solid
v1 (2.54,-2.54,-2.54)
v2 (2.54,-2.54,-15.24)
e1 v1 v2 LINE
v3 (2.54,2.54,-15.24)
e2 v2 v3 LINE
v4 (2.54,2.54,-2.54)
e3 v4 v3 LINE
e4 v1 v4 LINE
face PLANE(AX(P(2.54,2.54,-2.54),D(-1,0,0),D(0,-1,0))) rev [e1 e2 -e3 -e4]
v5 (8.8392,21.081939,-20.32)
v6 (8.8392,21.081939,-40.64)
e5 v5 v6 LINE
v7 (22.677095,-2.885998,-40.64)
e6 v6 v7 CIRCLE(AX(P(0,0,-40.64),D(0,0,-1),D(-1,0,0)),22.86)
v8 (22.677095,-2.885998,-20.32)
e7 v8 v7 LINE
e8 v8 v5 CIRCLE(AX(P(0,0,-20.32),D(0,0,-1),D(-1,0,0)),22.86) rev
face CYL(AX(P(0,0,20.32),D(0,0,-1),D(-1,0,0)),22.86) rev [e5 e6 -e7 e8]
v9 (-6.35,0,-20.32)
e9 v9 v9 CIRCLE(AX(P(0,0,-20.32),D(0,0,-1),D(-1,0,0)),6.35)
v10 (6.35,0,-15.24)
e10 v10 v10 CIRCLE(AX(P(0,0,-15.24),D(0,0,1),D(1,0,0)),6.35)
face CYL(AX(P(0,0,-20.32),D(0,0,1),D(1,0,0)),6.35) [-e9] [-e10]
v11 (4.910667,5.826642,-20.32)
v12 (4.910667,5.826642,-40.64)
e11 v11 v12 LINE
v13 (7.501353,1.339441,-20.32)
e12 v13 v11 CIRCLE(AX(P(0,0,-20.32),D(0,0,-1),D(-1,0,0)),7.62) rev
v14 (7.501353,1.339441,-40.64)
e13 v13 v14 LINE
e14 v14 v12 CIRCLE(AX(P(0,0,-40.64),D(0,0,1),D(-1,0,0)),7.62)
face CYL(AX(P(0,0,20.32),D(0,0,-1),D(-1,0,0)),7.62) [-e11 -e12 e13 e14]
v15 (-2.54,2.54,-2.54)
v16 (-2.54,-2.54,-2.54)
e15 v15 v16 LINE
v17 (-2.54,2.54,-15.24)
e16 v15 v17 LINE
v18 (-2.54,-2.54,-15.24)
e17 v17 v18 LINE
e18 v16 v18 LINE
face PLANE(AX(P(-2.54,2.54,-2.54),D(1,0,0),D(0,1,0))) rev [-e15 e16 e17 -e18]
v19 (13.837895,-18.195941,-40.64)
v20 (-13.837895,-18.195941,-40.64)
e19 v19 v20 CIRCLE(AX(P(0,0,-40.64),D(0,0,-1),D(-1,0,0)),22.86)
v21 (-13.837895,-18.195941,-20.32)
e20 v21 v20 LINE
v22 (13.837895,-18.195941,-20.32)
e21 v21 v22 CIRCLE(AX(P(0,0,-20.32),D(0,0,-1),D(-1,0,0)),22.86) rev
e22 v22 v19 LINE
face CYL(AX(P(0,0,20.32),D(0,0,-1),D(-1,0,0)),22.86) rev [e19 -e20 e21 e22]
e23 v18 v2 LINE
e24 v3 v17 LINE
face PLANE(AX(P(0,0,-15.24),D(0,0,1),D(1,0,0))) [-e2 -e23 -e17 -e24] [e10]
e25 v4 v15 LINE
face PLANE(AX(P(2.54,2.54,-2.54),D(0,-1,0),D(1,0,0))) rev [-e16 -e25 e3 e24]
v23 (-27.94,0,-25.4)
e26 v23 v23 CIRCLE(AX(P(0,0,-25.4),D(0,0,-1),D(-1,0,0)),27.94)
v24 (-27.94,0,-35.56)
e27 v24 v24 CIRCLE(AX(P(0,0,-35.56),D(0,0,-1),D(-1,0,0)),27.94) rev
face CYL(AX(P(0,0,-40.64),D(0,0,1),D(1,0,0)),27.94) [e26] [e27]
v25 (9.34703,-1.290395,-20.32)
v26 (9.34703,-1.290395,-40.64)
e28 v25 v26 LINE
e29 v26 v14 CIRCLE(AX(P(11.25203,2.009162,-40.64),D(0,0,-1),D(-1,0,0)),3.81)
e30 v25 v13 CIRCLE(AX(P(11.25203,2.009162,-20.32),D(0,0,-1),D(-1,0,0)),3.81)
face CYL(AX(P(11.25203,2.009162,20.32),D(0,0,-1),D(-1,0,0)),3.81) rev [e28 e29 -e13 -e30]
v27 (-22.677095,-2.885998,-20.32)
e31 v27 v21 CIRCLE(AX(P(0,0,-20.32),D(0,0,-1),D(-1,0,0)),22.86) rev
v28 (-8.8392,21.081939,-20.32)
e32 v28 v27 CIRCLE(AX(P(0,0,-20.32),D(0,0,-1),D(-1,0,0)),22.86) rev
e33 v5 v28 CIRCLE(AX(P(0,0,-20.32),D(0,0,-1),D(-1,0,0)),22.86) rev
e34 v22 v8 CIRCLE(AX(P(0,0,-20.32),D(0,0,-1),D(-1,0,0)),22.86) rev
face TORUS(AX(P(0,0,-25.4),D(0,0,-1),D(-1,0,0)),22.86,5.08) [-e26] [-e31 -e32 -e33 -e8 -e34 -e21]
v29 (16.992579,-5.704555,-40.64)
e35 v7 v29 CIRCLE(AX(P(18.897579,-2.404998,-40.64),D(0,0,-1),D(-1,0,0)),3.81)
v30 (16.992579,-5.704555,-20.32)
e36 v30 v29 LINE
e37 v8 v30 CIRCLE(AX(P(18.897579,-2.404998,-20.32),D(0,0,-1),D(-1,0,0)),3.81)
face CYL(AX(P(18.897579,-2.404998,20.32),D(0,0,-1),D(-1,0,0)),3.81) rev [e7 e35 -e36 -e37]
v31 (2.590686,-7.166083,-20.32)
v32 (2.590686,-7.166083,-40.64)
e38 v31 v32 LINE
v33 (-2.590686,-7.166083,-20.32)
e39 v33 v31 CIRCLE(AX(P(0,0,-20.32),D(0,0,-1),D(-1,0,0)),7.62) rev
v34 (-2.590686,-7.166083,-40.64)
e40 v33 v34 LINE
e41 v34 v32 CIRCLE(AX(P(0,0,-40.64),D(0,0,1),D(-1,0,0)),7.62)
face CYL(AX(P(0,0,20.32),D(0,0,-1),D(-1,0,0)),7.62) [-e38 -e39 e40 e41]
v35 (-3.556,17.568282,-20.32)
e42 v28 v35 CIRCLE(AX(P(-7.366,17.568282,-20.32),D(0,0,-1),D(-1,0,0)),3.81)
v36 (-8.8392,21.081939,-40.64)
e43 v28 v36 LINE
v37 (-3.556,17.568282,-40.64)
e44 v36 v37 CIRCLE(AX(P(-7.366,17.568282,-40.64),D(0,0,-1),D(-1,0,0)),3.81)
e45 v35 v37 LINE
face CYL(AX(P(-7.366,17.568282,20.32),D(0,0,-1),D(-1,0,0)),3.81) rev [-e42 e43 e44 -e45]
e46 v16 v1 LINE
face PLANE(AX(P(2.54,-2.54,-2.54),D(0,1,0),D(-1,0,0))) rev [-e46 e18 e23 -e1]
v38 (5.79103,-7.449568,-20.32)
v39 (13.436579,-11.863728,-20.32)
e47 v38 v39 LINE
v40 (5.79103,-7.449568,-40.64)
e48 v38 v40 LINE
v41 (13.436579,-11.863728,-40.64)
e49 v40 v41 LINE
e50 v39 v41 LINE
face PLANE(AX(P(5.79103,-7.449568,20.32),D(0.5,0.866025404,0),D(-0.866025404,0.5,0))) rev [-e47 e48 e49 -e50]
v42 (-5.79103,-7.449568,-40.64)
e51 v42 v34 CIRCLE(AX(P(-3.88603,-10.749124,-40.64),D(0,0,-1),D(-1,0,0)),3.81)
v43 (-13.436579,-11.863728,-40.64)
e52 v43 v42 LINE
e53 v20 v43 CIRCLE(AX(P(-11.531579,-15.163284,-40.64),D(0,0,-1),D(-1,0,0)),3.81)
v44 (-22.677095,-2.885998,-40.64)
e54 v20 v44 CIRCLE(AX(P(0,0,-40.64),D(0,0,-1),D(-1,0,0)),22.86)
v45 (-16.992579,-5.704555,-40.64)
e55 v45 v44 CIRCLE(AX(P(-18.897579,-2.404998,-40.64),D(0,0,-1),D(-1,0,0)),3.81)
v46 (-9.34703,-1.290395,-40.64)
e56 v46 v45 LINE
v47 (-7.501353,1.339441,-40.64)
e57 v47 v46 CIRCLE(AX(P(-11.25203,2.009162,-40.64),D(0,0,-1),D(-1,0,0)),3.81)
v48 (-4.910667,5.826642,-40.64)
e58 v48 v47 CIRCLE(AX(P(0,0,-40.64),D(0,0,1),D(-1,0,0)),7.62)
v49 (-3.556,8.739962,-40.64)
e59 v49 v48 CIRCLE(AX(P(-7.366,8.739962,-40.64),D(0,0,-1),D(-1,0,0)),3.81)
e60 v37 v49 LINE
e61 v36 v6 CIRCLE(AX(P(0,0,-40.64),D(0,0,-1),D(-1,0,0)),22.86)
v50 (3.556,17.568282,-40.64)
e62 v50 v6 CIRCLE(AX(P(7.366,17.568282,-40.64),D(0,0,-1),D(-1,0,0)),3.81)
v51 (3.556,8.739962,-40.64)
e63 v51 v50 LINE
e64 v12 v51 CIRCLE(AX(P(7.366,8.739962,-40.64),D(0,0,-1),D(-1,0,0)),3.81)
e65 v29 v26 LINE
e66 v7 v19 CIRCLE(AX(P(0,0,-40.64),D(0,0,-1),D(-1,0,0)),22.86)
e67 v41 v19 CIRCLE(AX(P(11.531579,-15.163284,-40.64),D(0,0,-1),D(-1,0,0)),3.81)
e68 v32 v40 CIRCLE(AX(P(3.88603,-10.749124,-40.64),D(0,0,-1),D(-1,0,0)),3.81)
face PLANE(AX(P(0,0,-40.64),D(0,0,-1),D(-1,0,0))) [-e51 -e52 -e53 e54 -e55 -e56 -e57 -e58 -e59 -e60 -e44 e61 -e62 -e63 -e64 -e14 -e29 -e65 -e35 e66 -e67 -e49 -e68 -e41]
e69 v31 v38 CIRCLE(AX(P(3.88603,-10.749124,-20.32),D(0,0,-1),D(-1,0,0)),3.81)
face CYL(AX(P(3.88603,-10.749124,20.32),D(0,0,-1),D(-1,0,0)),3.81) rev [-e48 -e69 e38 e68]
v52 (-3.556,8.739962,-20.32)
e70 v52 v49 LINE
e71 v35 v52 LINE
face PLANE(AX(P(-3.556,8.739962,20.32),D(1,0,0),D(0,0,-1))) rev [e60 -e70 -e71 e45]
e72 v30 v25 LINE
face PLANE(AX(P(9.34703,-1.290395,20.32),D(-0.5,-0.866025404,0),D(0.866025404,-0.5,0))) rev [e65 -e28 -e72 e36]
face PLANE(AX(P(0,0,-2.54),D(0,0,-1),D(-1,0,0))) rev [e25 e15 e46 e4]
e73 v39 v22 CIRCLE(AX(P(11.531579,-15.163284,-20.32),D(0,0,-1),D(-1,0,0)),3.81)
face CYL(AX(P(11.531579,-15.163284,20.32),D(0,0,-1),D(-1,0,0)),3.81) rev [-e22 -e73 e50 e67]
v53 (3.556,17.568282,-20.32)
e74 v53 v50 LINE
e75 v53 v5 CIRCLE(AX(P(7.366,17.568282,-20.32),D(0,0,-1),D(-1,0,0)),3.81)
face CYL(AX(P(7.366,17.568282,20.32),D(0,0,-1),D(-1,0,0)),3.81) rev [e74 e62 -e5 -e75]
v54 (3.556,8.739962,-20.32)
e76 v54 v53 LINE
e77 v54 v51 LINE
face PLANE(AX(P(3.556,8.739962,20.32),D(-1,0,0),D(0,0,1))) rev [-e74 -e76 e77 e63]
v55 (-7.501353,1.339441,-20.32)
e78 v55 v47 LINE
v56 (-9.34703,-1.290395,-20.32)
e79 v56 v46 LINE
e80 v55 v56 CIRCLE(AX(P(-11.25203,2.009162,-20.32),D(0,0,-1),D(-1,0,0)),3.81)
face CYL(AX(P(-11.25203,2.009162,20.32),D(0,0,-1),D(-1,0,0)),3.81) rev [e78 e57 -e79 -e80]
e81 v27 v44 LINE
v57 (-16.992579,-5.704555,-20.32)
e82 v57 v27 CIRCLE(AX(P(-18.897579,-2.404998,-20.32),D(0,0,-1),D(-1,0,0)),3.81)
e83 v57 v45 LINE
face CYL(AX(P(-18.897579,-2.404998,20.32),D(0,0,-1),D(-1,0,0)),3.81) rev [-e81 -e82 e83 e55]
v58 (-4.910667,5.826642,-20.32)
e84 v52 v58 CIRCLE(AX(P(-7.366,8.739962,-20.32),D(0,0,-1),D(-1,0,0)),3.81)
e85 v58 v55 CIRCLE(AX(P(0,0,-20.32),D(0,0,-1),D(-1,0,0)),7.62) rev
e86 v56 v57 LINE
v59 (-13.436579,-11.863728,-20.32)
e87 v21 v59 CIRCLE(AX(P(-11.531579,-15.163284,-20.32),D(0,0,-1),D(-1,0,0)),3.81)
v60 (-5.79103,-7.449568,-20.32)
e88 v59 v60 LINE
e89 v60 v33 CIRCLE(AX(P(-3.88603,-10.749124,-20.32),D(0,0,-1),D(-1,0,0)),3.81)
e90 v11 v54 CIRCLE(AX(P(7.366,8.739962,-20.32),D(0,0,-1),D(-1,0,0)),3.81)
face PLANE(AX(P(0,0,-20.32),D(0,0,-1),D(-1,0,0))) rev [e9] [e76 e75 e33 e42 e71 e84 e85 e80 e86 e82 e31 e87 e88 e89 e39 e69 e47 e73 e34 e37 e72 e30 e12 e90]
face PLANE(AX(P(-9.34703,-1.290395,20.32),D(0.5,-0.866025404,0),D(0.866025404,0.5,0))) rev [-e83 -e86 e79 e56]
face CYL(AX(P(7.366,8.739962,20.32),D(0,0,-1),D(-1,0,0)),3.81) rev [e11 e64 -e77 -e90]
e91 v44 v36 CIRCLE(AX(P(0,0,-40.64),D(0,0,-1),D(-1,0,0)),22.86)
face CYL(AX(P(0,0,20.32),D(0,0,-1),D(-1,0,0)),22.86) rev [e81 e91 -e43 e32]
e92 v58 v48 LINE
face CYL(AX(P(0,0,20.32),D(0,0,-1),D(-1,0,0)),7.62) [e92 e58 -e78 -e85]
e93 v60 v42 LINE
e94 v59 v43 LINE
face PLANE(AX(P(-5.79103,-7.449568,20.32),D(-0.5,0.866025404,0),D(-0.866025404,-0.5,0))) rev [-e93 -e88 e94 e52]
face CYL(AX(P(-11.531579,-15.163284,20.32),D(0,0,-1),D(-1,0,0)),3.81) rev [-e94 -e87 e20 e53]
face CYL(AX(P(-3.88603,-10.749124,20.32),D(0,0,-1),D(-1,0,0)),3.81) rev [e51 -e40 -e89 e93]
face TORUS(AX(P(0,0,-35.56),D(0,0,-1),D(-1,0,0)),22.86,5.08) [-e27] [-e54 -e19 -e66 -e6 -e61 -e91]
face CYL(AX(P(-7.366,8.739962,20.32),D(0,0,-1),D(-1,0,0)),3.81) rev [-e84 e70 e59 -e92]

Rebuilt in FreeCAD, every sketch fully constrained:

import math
import FreeCAD as App
import Part
import Sketcher
Q = App.Units.Quantity


def edges_at(feature, points):
    """Names of the edges that pass closest to the given points."""
    edges = feature.Shape.Edges
    near = lambda p: min(range(len(edges)), key=lambda i: edges[i].distToShape(Part.Vertex(*p))[0])
    return sorted({f"Edge{near(p) + 1}" for p in points})


def add_polygon(sketch, points):
    """Adds a closed chain of lines whose ends are joined by coincident constraints."""
    first, n = sketch.GeometryCount, len(points)
    for a, b in zip(points, points[1:] + points[:1]):
        sketch.addGeometry(Part.LineSegment(App.Vector(*a, 0), App.Vector(*b, 0)), False)
    for i in range(n):
        sketch.addConstraint(Sketcher.Constraint("Coincident", first + i, 2, first + (i + 1) % n, 1))

doc = App.newDocument("Part")
params = doc.addObject("Spreadsheet::Sheet", "Params")
for row, (alias, value) in enumerate([
    ("sketch1_diameter", "2.2 in"),
    ("pad1_length", "0.8 in"),
    ("sketch2_diameter", "0.5 in"),
    ("pad2_length", "0.8 in"),
    ("sketch3_diameter", "2.2 in"),
    ("pad3_length", "0.8 in"),
    ("fillet_radius", "0.2 in"),
    ("fillet2_radius", "0.2 in"),
    ("fillet3_radius", "0.2 in"),
    ("fillet4_radius", "0.2 in"),
    ("sketch4_radius", "0.9 in"),
    ("sketch4_radius2", "0.3 in"),
    ("sketch4_radius3", "0.15 in"),
    ("sketch5_diameter", "2.2 in"),
    ("sketch6_diameter", "0.5 in"),
    ("pocket3_length", "0.2 in"),
    ("sketch7_diameter", "0.5 in"),
    ("pocket4_length", "0.4 in"),
    ("sketch8_width", "0.2 in"),
    ("pad4_length", "0.5 in"),
], start=1):
    params.set(f"A{row}", alias)
    params.set(f"B{row}", "=" + value)
    params.setAlias(f"B{row}", alias)

body = doc.addObject("PartDesign::Body", "Body")

# Sketch on XY plane
sketch1 = body.newObject("Sketcher::SketchObject", "Sketch")
sketch1.AttachmentSupport = (doc.getObject("XY_Plane"), [""])
sketch1.MapMode = "FlatFace"
sketch1.addGeometry(Part.Circle(App.Vector(0, 0, 0), App.Vector(0, 0, 1), 27.94), False)
sketch1.addConstraint([
    Sketcher.Constraint("Coincident", 0, 3, -1, 1),
    Sketcher.Constraint("Diameter", 0, Q("2.2 in")),
])
sketch1.setExpression("Constraints[1]", "Params.sketch1_diameter")
pad1 = body.newObject("PartDesign::Pad", "Pad")
pad1.Profile = sketch1
pad1.setExpression("Length", "Params.pad1_length")

# Sketch on XY plane
sketch2 = body.newObject("Sketcher::SketchObject", "Sketch001")
sketch2.AttachmentSupport = (doc.getObject("XY_Plane"), [""])
sketch2.MapMode = "FlatFace"
sketch2.addGeometry(Part.Circle(App.Vector(0, 0, 0), App.Vector(0, 0, 1), 6.35), False)
sketch2.addConstraint([
    Sketcher.Constraint("Coincident", 0, 3, -1, 1),
    Sketcher.Constraint("Diameter", 0, Q("0.5 in")),
])
sketch2.setExpression("Constraints[1]", "Params.sketch2_diameter")
pad2 = body.newObject("PartDesign::Pad", "Pad001")
pad2.Profile = sketch2
pad2.setExpression("Length", "Params.pad2_length")
pad2.Reversed = True

# Sketch on XY plane
sketch3 = body.newObject("Sketcher::SketchObject", "Sketch002")
sketch3.AttachmentSupport = (doc.getObject("XY_Plane"), [""])
sketch3.MapMode = "FlatFace"
sketch3.AttachmentOffset = App.Placement(App.Vector(0, 0, -1.6 * 25.4), App.Rotation())
sketch3.addGeometry(Part.Circle(App.Vector(0, 0, 0), App.Vector(0, 0, 1), 27.94), False)
sketch3.addConstraint([
    Sketcher.Constraint("Coincident", 0, 3, -1, 1),
    Sketcher.Constraint("Diameter", 0, Q("2.2 in")),
])
sketch3.setExpression("Constraints[1]", "Params.sketch3_diameter")
pad3 = body.newObject("PartDesign::Pad", "Pad002")
pad3.Profile = sketch3
pad3.setExpression("Length", "Params.pad3_length")
doc.recompute()

fillet = body.newObject("PartDesign::Fillet", "Fillet")
fillet.Base = (pad3, edges_at(pad3, [(-27.94, 0, 20.32)]))
fillet.setExpression("Radius", "Params.fillet_radius")
doc.recompute()

fillet2 = body.newObject("PartDesign::Fillet", "Fillet001")
fillet2.Base = (fillet, edges_at(fillet, [(-27.94, 0, 0)]))
fillet2.setExpression("Radius", "Params.fillet2_radius")
doc.recompute()

fillet3 = body.newObject("PartDesign::Fillet", "Fillet002")
fillet3.Base = (fillet2, edges_at(fillet2, [(-27.94, 0, -20.32)]))
fillet3.setExpression("Radius", "Params.fillet3_radius")
doc.recompute()

fillet4 = body.newObject("PartDesign::Fillet", "Fillet003")
fillet4.Base = (fillet3, edges_at(fillet3, [(-27.94, 0, -40.64)]))
fillet4.setExpression("Radius", "Params.fillet4_radius")

# Sketch on XY plane
sketch4 = body.newObject("Sketcher::SketchObject", "Sketch003")
sketch4.AttachmentSupport = (doc.getObject("XY_Plane"), [""])
sketch4.MapMode = "FlatFace"
sketch4.AttachmentOffset = App.Placement(App.Vector(0, 0, -1.6 * 25.4), App.Rotation())
sketch4.addGeometry([
    Part.LineSegment(App.Vector(3.556, 8.739962, 0), App.Vector(3.556, 17.568282, 0)),  # 0
    Part.ArcOfCircle(Part.Circle(App.Vector(7.366, 17.568282, 0), App.Vector(0, 0, 1), 3.81), math.radians(67.252752), math.radians(180)),  # 1
    Part.ArcOfCircle(Part.Circle(App.Vector(0, 0, 0), App.Vector(0, 0, 1), 22.86), math.radians(-7.252752), math.radians(67.252752)),  # 2
    Part.ArcOfCircle(Part.Circle(App.Vector(18.897579, -2.404998, 0), App.Vector(0, 0, 1), 3.81), math.radians(-120), math.radians(-7.252752)),  # 3
    Part.LineSegment(App.Vector(16.992579, -5.704555, 0), App.Vector(9.34703, -1.290395, 0)),  # 4
    Part.ArcOfCircle(Part.Circle(App.Vector(11.25203, 2.009162, 0), App.Vector(0, 0, 1), 3.81), math.radians(-169.875965), math.radians(-120)),  # 5
    Part.ArcOfCircle(Part.Circle(App.Vector(0, 0, 0), App.Vector(0, 0, 1), 7.62), math.radians(10.124035), math.radians(49.875965)),  # 6
    Part.ArcOfCircle(Part.Circle(App.Vector(7.366, 8.739962, 0), App.Vector(0, 0, 1), 3.81), math.radians(-180), math.radians(-130.124035)),  # 7
    Part.LineSegment(App.Vector(-3.556, 17.568282, 0), App.Vector(-3.556, 8.739962, 0)),  # 8
    Part.ArcOfCircle(Part.Circle(App.Vector(-7.366, 8.739962, 0), App.Vector(0, 0, 1), 3.81), math.radians(-49.875965), math.radians(0)),  # 9
    Part.ArcOfCircle(Part.Circle(App.Vector(0, 0, 0), App.Vector(0, 0, 1), 7.62), math.radians(130.124035), math.radians(169.875965)),  # 10
    Part.ArcOfCircle(Part.Circle(App.Vector(-11.25203, 2.009162, 0), App.Vector(0, 0, 1), 3.81), math.radians(-60), math.radians(-10.124035)),  # 11
    Part.LineSegment(App.Vector(-9.34703, -1.290395, 0), App.Vector(-16.992579, -5.704555, 0)),  # 12
    Part.ArcOfCircle(Part.Circle(App.Vector(-18.897579, -2.404998, 0), App.Vector(0, 0, 1), 3.81), math.radians(-172.747248), math.radians(-60)),  # 13
    Part.ArcOfCircle(Part.Circle(App.Vector(0, 0, 0), App.Vector(0, 0, 1), 22.86), math.radians(112.747248), math.radians(187.252752)),  # 14
    Part.ArcOfCircle(Part.Circle(App.Vector(-7.366, 17.568282, 0), App.Vector(0, 0, 1), 3.81), math.radians(0), math.radians(112.747248)),  # 15
    Part.LineSegment(App.Vector(-13.436579, -11.863727, 0), App.Vector(-5.79103, -7.449568, 0)),  # 16
    Part.ArcOfCircle(Part.Circle(App.Vector(-3.88603, -10.749124, 0), App.Vector(0, 0, 1), 3.81), math.radians(70.124035), math.radians(120)),  # 17
    Part.ArcOfCircle(Part.Circle(App.Vector(0, 0, 0), App.Vector(0, 0, 1), 7.62), math.radians(-109.875965), math.radians(-70.124035)),  # 18
    Part.ArcOfCircle(Part.Circle(App.Vector(3.88603, -10.749124, 0), App.Vector(0, 0, 1), 3.81), math.radians(60), math.radians(109.875965)),  # 19
    Part.LineSegment(App.Vector(5.79103, -7.449568, 0), App.Vector(13.436579, -11.863727, 0)),  # 20
    Part.ArcOfCircle(Part.Circle(App.Vector(11.531579, -15.163284, 0), App.Vector(0, 0, 1), 3.81), math.radians(-52.747248), math.radians(60)),  # 21
    Part.ArcOfCircle(Part.Circle(App.Vector(0, 0, 0), App.Vector(0, 0, 1), 22.86), math.radians(-127.252752), math.radians(-52.747248)),  # 22
    Part.ArcOfCircle(Part.Circle(App.Vector(-11.531579, -15.163284, 0), App.Vector(0, 0, 1), 3.81), math.radians(120), math.radians(232.747248)),  # 23
], False)
sketch4.addConstraint([
    Sketcher.Constraint("Tangent", 0, 2, 1, 2),
    Sketcher.Constraint("Tangent", 1, 1, 2, 2),
    Sketcher.Constraint("Tangent", 2, 1, 3, 2),
    Sketcher.Constraint("Tangent", 3, 1, 4, 1),
    Sketcher.Constraint("Tangent", 4, 2, 5, 2),
    Sketcher.Constraint("Tangent", 5, 1, 6, 1),
    Sketcher.Constraint("Tangent", 6, 2, 7, 2),
    Sketcher.Constraint("Tangent", 7, 1, 0, 1),
    Sketcher.Constraint("Tangent", 8, 2, 9, 2),
    Sketcher.Constraint("Tangent", 9, 1, 10, 1),
    Sketcher.Constraint("Tangent", 10, 2, 11, 2),
    Sketcher.Constraint("Tangent", 11, 1, 12, 1),
    Sketcher.Constraint("Tangent", 12, 2, 13, 2),
    Sketcher.Constraint("Tangent", 13, 1, 14, 2),
    Sketcher.Constraint("Tangent", 14, 1, 15, 2),
    Sketcher.Constraint("Tangent", 15, 1, 8, 1),
    Sketcher.Constraint("Tangent", 16, 2, 17, 2),
    Sketcher.Constraint("Tangent", 17, 1, 18, 1),
    Sketcher.Constraint("Tangent", 18, 2, 19, 2),
    Sketcher.Constraint("Tangent", 19, 1, 20, 1),
    Sketcher.Constraint("Tangent", 20, 2, 21, 2),
    Sketcher.Constraint("Tangent", 21, 1, 22, 2),
    Sketcher.Constraint("Tangent", 22, 1, 23, 2),
    Sketcher.Constraint("Tangent", 23, 1, 16, 1),
    Sketcher.Constraint("Vertical", 0),
    Sketcher.Constraint("Vertical", 8),
    Sketcher.Constraint("Coincident", 2, 3, -1, 1),
    Sketcher.Constraint("Coincident", 6, 3, -1, 1),
    Sketcher.Constraint("Coincident", 10, 3, -1, 1),
    Sketcher.Constraint("Coincident", 14, 3, -1, 1),
    Sketcher.Constraint("Coincident", 18, 3, -1, 1),
    Sketcher.Constraint("Coincident", 22, 3, -1, 1),
    Sketcher.Constraint("Equal", 1, 3),
    Sketcher.Constraint("Equal", 3, 5),
    Sketcher.Constraint("Equal", 5, 7),
    Sketcher.Constraint("Equal", 7, 9),
    Sketcher.Constraint("Equal", 6, 10),
    Sketcher.Constraint("Equal", 9, 11),
    Sketcher.Constraint("Equal", 11, 13),
    Sketcher.Constraint("Equal", 2, 14),
    Sketcher.Constraint("Equal", 13, 15),
    Sketcher.Constraint("Equal", 15, 17),
    Sketcher.Constraint("Equal", 10, 18),
    Sketcher.Constraint("Equal", 17, 19),
    Sketcher.Constraint("Equal", 19, 21),
    Sketcher.Constraint("Equal", 14, 22),
    Sketcher.Constraint("Equal", 21, 23),
    Sketcher.Constraint("Symmetric", 4, 2, 11, 1, -2),
    Sketcher.Constraint("Symmetric", 16, 2, 19, 1, -2),
    Sketcher.Constraint("Parallel", 12, 16),
    Sketcher.Constraint("Horizontal", 7, 3, 9, 3),
    Sketcher.Constraint("Equal", 12, 16),
    Sketcher.Constraint("Radius", 2, Q("0.9 in")),
    Sketcher.Constraint("Radius", 6, Q("0.3 in")),
    Sketcher.Constraint("Radius", 1, Q("0.15 in")),
    Sketcher.Constraint("Angle", 4, Q("150 deg")),
    Sketcher.Constraint("DistanceX", -1, 1, 1, 3, Q("0.29 in")),
    Sketcher.Constraint("DistanceX", 11, 3, 17, 3, Q("0.29 in")),
])
sketch4.setExpression("Constraints[52]", "Params.sketch4_radius")
sketch4.setExpression("Constraints[53]", "Params.sketch4_radius2")
sketch4.setExpression("Constraints[54]", "Params.sketch4_radius3")
pocket1 = body.newObject("PartDesign::Pocket", "Pocket")
pocket1.Profile = sketch4
pocket1.Type = "ThroughAll"
pocket1.Reversed = True

# Sketch on XY plane
sketch5 = body.newObject("Sketcher::SketchObject", "Sketch004")
sketch5.AttachmentSupport = (doc.getObject("XY_Plane"), [""])
sketch5.MapMode = "FlatFace"
sketch5.addGeometry(Part.Circle(App.Vector(0, 0, 0), App.Vector(0, 0, 1), 27.94), False)
sketch5.addConstraint([
    Sketcher.Constraint("Coincident", 0, 3, -1, 1),
    Sketcher.Constraint("Diameter", 0, Q("2.2 in")),
])
sketch5.setExpression("Constraints[1]", "Params.sketch5_diameter")
pocket2 = body.newObject("PartDesign::Pocket", "Pocket001")
pocket2.Profile = sketch5
pocket2.Type = "ThroughAll"
pocket2.Reversed = True

# Sketch on XY plane
sketch6 = body.newObject("Sketcher::SketchObject", "Sketch005")
sketch6.AttachmentSupport = (doc.getObject("XY_Plane"), [""])
sketch6.MapMode = "FlatFace"
sketch6.addGeometry(Part.Circle(App.Vector(0, 0, 0), App.Vector(0, 0, 1), 6.35), False)
sketch6.addConstraint([
    Sketcher.Constraint("Coincident", 0, 3, -1, 1),
    Sketcher.Constraint("Diameter", 0, Q("0.5 in")),
])
sketch6.setExpression("Constraints[1]", "Params.sketch6_diameter")
pocket3 = body.newObject("PartDesign::Pocket", "Pocket002")
pocket3.Profile = sketch6
pocket3.setExpression("Length", "Params.pocket3_length")

# Sketch on XY plane
sketch7 = body.newObject("Sketcher::SketchObject", "Sketch006")
sketch7.AttachmentSupport = (doc.getObject("XY_Plane"), [""])
sketch7.MapMode = "FlatFace"
sketch7.AttachmentOffset = App.Placement(App.Vector(0, 0, -0.2 * 25.4), App.Rotation())
sketch7.addGeometry(Part.Circle(App.Vector(0, 0, 0), App.Vector(0, 0, 1), 6.35), False)
sketch7.addConstraint([
    Sketcher.Constraint("Coincident", 0, 3, -1, 1),
    Sketcher.Constraint("Diameter", 0, Q("0.5 in")),
])
sketch7.setExpression("Constraints[1]", "Params.sketch7_diameter")
pocket4 = body.newObject("PartDesign::Pocket", "Pocket003")
pocket4.Profile = sketch7
pocket4.setExpression("Length", "Params.pocket4_length")

# Sketch on XY plane
sketch8 = body.newObject("Sketcher::SketchObject", "Sketch007")
sketch8.AttachmentSupport = (doc.getObject("XY_Plane"), [""])
sketch8.MapMode = "FlatFace"
sketch8.AttachmentOffset = App.Placement(App.Vector(0, 0, -0.6 * 25.4), App.Rotation())
add_polygon(sketch8, [(-2.54, 2.54), (-2.54, -2.54), (2.54, -2.54), (2.54, 2.54)])  # lines 0-3
sketch8.addConstraint([
    Sketcher.Constraint("Vertical", 0),
    Sketcher.Constraint("Horizontal", 1),
    Sketcher.Constraint("Vertical", 2),
    Sketcher.Constraint("Horizontal", 3),
    Sketcher.Constraint("Symmetric", 0, 2, 2, 2, -1, 1),
    Sketcher.Constraint("Equal", 3, 0),
    Sketcher.Constraint("DistanceX", 1, 1, 1, 2, Q("0.2 in")),
])
sketch8.setExpression("Constraints[10]", "Params.sketch8_width")
pad4 = body.newObject("PartDesign::Pad", "Pad003")
pad4.Profile = sketch8
pad4.setExpression("Length", "Params.pad4_length")

doc.recompute()
